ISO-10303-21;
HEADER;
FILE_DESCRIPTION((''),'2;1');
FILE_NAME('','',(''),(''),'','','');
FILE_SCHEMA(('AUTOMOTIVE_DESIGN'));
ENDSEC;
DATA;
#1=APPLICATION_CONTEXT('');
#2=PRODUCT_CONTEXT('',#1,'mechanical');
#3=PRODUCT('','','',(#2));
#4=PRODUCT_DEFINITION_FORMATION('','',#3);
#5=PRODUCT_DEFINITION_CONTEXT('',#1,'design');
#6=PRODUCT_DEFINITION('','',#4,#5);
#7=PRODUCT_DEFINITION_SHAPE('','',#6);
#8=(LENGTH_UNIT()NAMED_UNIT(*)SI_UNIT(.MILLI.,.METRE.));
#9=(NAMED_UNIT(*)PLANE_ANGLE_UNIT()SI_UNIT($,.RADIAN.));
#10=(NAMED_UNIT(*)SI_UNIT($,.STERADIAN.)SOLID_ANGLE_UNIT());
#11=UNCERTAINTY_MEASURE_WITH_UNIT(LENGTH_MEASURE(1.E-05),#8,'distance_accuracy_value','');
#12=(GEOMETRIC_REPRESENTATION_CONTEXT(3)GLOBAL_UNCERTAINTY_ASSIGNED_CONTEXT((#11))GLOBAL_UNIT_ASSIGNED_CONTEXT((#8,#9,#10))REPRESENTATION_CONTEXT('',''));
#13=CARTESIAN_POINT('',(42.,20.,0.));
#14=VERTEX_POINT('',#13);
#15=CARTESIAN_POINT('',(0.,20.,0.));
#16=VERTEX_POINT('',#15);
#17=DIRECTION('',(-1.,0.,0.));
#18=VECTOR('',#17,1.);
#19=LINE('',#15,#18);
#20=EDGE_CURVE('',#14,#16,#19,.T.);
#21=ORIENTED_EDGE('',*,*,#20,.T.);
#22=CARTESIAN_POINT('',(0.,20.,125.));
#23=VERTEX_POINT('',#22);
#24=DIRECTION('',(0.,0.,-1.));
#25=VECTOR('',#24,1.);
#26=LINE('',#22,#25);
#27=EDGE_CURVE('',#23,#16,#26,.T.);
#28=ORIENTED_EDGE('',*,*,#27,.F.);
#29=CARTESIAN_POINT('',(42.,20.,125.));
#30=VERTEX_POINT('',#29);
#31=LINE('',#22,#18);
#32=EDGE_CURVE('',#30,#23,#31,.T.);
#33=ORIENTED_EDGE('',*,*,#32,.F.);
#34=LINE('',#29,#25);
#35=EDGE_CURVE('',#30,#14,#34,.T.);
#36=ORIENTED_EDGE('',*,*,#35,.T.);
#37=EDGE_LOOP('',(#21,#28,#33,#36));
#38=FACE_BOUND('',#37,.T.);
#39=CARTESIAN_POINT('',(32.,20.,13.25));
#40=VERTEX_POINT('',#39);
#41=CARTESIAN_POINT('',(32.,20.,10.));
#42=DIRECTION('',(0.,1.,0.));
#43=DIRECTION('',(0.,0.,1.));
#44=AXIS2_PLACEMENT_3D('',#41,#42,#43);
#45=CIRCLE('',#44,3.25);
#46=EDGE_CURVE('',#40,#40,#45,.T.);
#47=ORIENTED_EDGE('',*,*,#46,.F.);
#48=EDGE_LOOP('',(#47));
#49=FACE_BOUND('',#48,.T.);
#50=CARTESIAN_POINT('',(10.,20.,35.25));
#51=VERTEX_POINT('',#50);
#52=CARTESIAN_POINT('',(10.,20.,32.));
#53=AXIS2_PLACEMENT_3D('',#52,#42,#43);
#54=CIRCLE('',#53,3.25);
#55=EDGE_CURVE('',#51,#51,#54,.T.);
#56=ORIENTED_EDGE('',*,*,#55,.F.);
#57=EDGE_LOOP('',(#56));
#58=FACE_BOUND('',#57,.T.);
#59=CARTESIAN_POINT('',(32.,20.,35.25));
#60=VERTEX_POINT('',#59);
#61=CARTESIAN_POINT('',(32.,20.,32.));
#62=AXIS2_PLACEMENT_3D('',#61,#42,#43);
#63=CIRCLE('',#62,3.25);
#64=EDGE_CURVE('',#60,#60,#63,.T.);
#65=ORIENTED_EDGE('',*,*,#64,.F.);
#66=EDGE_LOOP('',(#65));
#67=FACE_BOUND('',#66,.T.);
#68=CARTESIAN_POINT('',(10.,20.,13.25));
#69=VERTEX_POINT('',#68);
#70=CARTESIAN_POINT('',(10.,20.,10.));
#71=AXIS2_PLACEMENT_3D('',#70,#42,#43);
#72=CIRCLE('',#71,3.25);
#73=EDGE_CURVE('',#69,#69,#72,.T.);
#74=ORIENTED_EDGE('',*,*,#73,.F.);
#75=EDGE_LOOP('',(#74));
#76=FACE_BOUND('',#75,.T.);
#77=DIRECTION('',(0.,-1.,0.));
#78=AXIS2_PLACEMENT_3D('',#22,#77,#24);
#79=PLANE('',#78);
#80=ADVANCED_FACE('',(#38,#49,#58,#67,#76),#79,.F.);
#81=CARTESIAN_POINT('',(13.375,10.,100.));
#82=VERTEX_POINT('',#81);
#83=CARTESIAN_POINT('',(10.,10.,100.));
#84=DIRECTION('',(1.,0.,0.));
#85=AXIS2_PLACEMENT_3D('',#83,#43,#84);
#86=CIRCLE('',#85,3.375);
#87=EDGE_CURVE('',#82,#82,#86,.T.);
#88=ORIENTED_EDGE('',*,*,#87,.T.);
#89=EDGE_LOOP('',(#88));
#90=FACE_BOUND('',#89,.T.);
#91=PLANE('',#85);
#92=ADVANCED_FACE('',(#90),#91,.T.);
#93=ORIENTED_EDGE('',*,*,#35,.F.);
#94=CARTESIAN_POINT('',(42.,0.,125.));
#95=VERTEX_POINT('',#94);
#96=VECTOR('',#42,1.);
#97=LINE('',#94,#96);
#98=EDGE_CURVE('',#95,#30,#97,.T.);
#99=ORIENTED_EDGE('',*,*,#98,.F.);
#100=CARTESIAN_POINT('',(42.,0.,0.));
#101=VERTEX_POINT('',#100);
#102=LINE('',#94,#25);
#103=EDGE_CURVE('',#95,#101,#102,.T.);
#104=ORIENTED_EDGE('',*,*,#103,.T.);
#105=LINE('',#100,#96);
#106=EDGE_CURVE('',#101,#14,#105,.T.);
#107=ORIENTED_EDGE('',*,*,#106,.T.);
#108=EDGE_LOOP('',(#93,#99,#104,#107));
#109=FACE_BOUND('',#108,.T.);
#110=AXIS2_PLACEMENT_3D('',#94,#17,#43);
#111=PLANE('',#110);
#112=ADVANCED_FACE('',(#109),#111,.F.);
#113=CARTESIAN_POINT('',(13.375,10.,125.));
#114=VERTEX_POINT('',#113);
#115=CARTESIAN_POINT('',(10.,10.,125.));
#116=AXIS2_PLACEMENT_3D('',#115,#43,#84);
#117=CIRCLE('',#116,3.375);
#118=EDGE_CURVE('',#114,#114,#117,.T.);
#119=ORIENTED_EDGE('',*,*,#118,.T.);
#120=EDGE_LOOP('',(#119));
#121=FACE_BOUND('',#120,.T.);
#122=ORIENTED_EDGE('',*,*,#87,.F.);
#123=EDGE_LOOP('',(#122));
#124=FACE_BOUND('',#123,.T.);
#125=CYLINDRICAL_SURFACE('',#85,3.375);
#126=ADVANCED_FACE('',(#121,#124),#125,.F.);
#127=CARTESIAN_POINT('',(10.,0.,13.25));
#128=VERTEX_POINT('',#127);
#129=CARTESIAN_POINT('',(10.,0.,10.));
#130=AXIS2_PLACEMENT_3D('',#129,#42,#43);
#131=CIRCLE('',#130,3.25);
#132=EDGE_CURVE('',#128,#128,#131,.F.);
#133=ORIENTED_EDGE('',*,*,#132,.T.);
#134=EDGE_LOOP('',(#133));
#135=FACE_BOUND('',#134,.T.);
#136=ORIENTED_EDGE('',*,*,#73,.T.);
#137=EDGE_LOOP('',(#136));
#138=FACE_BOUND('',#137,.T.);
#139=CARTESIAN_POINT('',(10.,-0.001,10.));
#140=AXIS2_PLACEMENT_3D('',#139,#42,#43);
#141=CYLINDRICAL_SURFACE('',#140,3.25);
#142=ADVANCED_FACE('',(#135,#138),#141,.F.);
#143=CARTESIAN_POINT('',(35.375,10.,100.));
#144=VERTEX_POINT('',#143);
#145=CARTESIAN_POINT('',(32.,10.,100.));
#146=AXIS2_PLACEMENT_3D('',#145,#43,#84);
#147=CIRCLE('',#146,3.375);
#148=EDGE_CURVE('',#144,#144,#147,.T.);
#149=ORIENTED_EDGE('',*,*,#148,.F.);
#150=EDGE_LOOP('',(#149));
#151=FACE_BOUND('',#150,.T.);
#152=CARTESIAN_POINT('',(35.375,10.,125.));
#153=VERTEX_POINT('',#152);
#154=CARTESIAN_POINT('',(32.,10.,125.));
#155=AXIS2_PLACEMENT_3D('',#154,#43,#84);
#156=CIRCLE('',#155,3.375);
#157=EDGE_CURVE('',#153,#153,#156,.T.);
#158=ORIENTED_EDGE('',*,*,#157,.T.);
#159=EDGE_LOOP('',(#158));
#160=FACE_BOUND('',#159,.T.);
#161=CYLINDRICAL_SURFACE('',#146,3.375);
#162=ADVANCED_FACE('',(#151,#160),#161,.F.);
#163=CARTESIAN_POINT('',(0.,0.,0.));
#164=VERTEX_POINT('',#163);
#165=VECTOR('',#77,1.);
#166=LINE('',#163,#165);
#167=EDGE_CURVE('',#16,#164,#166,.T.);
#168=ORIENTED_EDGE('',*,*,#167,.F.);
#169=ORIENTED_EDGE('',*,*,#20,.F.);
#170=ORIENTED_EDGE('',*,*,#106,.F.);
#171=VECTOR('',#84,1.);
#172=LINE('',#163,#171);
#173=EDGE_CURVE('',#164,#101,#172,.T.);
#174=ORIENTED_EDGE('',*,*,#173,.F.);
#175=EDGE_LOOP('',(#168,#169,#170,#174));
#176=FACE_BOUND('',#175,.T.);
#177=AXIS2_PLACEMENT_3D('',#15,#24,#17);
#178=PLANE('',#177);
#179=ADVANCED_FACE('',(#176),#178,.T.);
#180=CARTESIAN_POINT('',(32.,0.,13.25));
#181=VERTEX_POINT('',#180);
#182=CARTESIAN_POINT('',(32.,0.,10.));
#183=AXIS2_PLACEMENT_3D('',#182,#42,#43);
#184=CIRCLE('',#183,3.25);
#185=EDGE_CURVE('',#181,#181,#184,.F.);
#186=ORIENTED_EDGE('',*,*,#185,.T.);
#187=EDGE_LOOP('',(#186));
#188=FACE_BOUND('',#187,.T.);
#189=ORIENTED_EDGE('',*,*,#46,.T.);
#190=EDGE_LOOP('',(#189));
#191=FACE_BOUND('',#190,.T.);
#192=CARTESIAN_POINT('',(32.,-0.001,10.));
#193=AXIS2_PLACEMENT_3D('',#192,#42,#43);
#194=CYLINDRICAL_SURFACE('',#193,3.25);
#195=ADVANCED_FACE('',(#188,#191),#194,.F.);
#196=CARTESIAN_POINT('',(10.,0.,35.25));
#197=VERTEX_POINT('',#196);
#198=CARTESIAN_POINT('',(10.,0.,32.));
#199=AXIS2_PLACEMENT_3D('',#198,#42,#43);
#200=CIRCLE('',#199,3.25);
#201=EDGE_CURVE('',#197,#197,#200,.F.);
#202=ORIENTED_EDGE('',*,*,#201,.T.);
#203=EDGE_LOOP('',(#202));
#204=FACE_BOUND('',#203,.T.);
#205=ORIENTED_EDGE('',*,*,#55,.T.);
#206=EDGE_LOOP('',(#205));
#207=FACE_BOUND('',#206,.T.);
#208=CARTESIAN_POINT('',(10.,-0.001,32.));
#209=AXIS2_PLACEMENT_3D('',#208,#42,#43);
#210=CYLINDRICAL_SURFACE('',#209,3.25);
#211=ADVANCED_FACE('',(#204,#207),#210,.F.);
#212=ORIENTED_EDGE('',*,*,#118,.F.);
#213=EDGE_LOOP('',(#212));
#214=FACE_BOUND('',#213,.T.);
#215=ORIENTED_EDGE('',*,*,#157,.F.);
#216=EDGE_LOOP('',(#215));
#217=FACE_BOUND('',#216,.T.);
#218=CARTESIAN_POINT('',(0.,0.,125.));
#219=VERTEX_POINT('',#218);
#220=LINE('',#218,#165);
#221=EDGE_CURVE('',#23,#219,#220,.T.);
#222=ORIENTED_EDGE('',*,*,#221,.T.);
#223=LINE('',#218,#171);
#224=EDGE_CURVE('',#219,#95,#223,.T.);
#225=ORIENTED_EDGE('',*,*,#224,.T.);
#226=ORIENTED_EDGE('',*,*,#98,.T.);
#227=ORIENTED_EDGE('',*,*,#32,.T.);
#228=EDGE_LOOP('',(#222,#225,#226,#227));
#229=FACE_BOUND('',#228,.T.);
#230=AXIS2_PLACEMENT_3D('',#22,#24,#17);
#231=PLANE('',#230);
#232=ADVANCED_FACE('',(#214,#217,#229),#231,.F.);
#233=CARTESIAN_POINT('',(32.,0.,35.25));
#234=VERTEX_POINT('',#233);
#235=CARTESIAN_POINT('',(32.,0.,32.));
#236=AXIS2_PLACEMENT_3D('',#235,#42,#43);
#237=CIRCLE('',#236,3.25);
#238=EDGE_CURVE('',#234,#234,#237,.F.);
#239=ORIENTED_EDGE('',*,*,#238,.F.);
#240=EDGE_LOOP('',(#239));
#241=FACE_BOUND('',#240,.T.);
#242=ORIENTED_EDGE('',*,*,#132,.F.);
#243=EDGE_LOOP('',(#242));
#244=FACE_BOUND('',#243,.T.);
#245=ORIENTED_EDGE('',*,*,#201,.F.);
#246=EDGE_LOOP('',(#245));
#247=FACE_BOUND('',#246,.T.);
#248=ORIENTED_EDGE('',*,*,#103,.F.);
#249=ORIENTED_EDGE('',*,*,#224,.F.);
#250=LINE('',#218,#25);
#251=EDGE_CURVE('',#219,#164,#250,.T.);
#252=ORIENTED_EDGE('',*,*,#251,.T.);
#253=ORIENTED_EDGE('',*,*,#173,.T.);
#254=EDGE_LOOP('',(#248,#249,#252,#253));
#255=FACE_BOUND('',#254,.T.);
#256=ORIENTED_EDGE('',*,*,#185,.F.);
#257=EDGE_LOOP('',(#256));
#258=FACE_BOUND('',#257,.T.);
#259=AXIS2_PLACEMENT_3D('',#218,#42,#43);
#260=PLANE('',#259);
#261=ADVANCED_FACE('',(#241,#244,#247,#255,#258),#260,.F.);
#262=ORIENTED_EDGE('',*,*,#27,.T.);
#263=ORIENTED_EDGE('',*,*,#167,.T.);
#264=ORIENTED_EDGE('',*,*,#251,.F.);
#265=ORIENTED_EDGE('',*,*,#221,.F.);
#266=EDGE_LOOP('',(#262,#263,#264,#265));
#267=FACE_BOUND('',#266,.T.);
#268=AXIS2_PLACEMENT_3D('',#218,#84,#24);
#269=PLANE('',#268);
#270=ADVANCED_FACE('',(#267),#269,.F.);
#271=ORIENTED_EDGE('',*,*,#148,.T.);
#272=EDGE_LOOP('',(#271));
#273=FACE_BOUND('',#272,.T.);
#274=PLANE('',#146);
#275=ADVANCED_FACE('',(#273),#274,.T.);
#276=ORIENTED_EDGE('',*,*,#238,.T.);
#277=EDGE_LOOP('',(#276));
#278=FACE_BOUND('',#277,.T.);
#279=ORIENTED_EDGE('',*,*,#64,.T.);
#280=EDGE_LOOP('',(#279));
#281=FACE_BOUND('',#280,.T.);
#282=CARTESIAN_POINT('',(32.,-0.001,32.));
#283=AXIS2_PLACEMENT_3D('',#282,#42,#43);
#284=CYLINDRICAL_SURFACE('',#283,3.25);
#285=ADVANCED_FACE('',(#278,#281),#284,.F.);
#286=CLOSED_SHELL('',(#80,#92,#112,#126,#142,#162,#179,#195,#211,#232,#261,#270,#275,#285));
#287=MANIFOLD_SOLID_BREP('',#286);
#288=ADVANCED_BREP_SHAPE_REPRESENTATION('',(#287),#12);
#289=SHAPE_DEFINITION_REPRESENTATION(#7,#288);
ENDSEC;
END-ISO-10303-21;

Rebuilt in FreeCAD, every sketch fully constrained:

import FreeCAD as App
import Part
import Sketcher
Q = App.Units.Quantity

doc = App.newDocument("Part")
body = doc.addObject("PartDesign::Body", "Body")

# Sketch on XY plane
sketch1 = body.newObject("Sketcher::SketchObject", "Sketch")
sketch1.AttachmentSupport = (doc.getObject("XY_Plane"), [""])
sketch1.MapMode = "FlatFace"
sketch1.addGeometry([
    Part.LineSegment(App.Vector(0, 20, 0), App.Vector(0, 0, 0)),
    Part.LineSegment(App.Vector(0, 0, 0), App.Vector(42, 0, 0)),
    Part.LineSegment(App.Vector(42, 0, 0), App.Vector(42, 20, 0)),
    Part.LineSegment(App.Vector(42, 20, 0), App.Vector(0, 20, 0)),
], False)
sketch1.addConstraint([
    Sketcher.Constraint("Coincident", 0, 2, 1, 1),
    Sketcher.Constraint("Coincident", 1, 2, 2, 1),
    Sketcher.Constraint("Coincident", 2, 2, 3, 1),
    Sketcher.Constraint("Coincident", 3, 2, 0, 1),
    Sketcher.Constraint("Vertical", 0),
    Sketcher.Constraint("Horizontal", 1),
    Sketcher.Constraint("Vertical", 2),
    Sketcher.Constraint("Horizontal", 3),
    Sketcher.Constraint("Coincident", 0, 2, -1, 1),
    Sketcher.Constraint("DistanceX", 1, 1, 1, 2, Q("42 mm")),
    Sketcher.Constraint("DistanceY", 0, 2, 0, 1, Q("20 mm")),
])
pad1 = body.newObject("PartDesign::Pad", "Pad")
pad1.Profile = sketch1
pad1.Length = 125

# Sketch on XZ plane
sketch2 = body.newObject("Sketcher::SketchObject", "Sketch001")
sketch2.AttachmentSupport = (doc.getObject("XZ_Plane"), [""])
sketch2.MapMode = "FlatFace"
sketch2.AttachmentOffset = App.Placement(App.Vector(0, 0, -20), App.Rotation())
sketch2.addGeometry(Part.Circle(App.Vector(10, 10, 0), App.Vector(0, 0, 1), 3.2), False)
sketch2.addConstraint([
    Sketcher.Constraint("Diameter", 0, Q("6.5 mm")),
    Sketcher.Constraint("DistanceX", -1, 1, 0, 3, Q("10 mm")),
    Sketcher.Constraint("DistanceY", -1, 1, 0, 3, Q("10 mm")),
])
pocket1 = body.newObject("PartDesign::Pocket", "Pocket")
pocket1.Profile = sketch2
pocket1.Type = "UpToFirst"
pocket1.Reversed = True

# Sketch on XZ plane
sketch3 = body.newObject("Sketcher::SketchObject", "Sketch002")
sketch3.AttachmentSupport = (doc.getObject("XZ_Plane"), [""])
sketch3.MapMode = "FlatFace"
sketch3.AttachmentOffset = App.Placement(App.Vector(0, 0, -20), App.Rotation())
sketch3.addGeometry(Part.Circle(App.Vector(32, 10, 0), App.Vector(0, 0, 1), 3.2), False)
sketch3.addConstraint([
    Sketcher.Constraint("Diameter", 0, Q("6.5 mm")),
    Sketcher.Constraint("DistanceX", -1, 1, 0, 3, Q("32 mm")),
    Sketcher.Constraint("DistanceY", -1, 1, 0, 3, Q("10 mm")),
])
pocket2 = body.newObject("PartDesign::Pocket", "Pocket001")
pocket2.Profile = sketch3
pocket2.Type = "UpToFirst"
pocket2.Reversed = True

# Sketch on XZ plane
sketch4 = body.newObject("Sketcher::SketchObject", "Sketch003")
sketch4.AttachmentSupport = (doc.getObject("XZ_Plane"), [""])
sketch4.MapMode = "FlatFace"
sketch4.AttachmentOffset = App.Placement(App.Vector(0, 0, -20), App.Rotation())
sketch4.addGeometry(Part.Circle(App.Vector(10, 32, 0), App.Vector(0, 0, 1), 3.2), False)
sketch4.addConstraint([
    Sketcher.Constraint("Diameter", 0, Q("6.5 mm")),
    Sketcher.Constraint("DistanceX", -1, 1, 0, 3, Q("10 mm")),
    Sketcher.Constraint("DistanceY", -1, 1, 0, 3, Q("32 mm")),
])
pocket3 = body.newObject("PartDesign::Pocket", "Pocket002")
pocket3.Profile = sketch4
pocket3.Type = "UpToFirst"
pocket3.Reversed = True

# Sketch on XZ plane
sketch5 = body.newObject("Sketcher::SketchObject", "Sketch004")
sketch5.AttachmentSupport = (doc.getObject("XZ_Plane"), [""])
sketch5.MapMode = "FlatFace"
sketch5.AttachmentOffset = App.Placement(App.Vector(0, 0, -20), App.Rotation())
sketch5.addGeometry(Part.Circle(App.Vector(32, 32, 0), App.Vector(0, 0, 1), 3.2), False)
sketch5.addConstraint([
    Sketcher.Constraint("Diameter", 0, Q("6.5 mm")),
    Sketcher.Constraint("DistanceX", -1, 1, 0, 3, Q("32 mm")),
    Sketcher.Constraint("DistanceY", -1, 1, 0, 3, Q("32 mm")),
])
pocket4 = body.newObject("PartDesign::Pocket", "Pocket003")
pocket4.Profile = sketch5
pocket4.Type = "UpToFirst"
pocket4.Reversed = True

# Sketch on XY plane
sketch6 = body.newObject("Sketcher::SketchObject", "Sketch005")
sketch6.AttachmentSupport = (doc.getObject("XY_Plane"), [""])
sketch6.MapMode = "FlatFace"
sketch6.AttachmentOffset = App.Placement(App.Vector(0, 0, 125), App.Rotation())
sketch6.addGeometry([
    Part.Circle(App.Vector(10, 10, 0), App.Vector(0, 0, 1), 3.4),
    Part.Circle(App.Vector(32, 10, 0), App.Vector(0, 0, 1), 3.4),
], False)
sketch6.addConstraint([
    Sketcher.Constraint("Equal", 0, 1),
    Sketcher.Constraint("Horizontal", 0, 3, 1, 3),
    Sketcher.Constraint("Diameter", 0, Q("6.75 mm")),
    Sketcher.Constraint("DistanceX", -1, 1, 0, 3, Q("10 mm")),
    Sketcher.Constraint("DistanceY", -1, 1, 0, 3, Q("10 mm")),
    Sketcher.Constraint("DistanceX", -1, 1, 1, 3, Q("32 mm")),
])
pocket5 = body.newObject("PartDesign::Pocket", "Pocket004")
pocket5.Profile = sketch6
pocket5.Length = 25

doc.recompute()
